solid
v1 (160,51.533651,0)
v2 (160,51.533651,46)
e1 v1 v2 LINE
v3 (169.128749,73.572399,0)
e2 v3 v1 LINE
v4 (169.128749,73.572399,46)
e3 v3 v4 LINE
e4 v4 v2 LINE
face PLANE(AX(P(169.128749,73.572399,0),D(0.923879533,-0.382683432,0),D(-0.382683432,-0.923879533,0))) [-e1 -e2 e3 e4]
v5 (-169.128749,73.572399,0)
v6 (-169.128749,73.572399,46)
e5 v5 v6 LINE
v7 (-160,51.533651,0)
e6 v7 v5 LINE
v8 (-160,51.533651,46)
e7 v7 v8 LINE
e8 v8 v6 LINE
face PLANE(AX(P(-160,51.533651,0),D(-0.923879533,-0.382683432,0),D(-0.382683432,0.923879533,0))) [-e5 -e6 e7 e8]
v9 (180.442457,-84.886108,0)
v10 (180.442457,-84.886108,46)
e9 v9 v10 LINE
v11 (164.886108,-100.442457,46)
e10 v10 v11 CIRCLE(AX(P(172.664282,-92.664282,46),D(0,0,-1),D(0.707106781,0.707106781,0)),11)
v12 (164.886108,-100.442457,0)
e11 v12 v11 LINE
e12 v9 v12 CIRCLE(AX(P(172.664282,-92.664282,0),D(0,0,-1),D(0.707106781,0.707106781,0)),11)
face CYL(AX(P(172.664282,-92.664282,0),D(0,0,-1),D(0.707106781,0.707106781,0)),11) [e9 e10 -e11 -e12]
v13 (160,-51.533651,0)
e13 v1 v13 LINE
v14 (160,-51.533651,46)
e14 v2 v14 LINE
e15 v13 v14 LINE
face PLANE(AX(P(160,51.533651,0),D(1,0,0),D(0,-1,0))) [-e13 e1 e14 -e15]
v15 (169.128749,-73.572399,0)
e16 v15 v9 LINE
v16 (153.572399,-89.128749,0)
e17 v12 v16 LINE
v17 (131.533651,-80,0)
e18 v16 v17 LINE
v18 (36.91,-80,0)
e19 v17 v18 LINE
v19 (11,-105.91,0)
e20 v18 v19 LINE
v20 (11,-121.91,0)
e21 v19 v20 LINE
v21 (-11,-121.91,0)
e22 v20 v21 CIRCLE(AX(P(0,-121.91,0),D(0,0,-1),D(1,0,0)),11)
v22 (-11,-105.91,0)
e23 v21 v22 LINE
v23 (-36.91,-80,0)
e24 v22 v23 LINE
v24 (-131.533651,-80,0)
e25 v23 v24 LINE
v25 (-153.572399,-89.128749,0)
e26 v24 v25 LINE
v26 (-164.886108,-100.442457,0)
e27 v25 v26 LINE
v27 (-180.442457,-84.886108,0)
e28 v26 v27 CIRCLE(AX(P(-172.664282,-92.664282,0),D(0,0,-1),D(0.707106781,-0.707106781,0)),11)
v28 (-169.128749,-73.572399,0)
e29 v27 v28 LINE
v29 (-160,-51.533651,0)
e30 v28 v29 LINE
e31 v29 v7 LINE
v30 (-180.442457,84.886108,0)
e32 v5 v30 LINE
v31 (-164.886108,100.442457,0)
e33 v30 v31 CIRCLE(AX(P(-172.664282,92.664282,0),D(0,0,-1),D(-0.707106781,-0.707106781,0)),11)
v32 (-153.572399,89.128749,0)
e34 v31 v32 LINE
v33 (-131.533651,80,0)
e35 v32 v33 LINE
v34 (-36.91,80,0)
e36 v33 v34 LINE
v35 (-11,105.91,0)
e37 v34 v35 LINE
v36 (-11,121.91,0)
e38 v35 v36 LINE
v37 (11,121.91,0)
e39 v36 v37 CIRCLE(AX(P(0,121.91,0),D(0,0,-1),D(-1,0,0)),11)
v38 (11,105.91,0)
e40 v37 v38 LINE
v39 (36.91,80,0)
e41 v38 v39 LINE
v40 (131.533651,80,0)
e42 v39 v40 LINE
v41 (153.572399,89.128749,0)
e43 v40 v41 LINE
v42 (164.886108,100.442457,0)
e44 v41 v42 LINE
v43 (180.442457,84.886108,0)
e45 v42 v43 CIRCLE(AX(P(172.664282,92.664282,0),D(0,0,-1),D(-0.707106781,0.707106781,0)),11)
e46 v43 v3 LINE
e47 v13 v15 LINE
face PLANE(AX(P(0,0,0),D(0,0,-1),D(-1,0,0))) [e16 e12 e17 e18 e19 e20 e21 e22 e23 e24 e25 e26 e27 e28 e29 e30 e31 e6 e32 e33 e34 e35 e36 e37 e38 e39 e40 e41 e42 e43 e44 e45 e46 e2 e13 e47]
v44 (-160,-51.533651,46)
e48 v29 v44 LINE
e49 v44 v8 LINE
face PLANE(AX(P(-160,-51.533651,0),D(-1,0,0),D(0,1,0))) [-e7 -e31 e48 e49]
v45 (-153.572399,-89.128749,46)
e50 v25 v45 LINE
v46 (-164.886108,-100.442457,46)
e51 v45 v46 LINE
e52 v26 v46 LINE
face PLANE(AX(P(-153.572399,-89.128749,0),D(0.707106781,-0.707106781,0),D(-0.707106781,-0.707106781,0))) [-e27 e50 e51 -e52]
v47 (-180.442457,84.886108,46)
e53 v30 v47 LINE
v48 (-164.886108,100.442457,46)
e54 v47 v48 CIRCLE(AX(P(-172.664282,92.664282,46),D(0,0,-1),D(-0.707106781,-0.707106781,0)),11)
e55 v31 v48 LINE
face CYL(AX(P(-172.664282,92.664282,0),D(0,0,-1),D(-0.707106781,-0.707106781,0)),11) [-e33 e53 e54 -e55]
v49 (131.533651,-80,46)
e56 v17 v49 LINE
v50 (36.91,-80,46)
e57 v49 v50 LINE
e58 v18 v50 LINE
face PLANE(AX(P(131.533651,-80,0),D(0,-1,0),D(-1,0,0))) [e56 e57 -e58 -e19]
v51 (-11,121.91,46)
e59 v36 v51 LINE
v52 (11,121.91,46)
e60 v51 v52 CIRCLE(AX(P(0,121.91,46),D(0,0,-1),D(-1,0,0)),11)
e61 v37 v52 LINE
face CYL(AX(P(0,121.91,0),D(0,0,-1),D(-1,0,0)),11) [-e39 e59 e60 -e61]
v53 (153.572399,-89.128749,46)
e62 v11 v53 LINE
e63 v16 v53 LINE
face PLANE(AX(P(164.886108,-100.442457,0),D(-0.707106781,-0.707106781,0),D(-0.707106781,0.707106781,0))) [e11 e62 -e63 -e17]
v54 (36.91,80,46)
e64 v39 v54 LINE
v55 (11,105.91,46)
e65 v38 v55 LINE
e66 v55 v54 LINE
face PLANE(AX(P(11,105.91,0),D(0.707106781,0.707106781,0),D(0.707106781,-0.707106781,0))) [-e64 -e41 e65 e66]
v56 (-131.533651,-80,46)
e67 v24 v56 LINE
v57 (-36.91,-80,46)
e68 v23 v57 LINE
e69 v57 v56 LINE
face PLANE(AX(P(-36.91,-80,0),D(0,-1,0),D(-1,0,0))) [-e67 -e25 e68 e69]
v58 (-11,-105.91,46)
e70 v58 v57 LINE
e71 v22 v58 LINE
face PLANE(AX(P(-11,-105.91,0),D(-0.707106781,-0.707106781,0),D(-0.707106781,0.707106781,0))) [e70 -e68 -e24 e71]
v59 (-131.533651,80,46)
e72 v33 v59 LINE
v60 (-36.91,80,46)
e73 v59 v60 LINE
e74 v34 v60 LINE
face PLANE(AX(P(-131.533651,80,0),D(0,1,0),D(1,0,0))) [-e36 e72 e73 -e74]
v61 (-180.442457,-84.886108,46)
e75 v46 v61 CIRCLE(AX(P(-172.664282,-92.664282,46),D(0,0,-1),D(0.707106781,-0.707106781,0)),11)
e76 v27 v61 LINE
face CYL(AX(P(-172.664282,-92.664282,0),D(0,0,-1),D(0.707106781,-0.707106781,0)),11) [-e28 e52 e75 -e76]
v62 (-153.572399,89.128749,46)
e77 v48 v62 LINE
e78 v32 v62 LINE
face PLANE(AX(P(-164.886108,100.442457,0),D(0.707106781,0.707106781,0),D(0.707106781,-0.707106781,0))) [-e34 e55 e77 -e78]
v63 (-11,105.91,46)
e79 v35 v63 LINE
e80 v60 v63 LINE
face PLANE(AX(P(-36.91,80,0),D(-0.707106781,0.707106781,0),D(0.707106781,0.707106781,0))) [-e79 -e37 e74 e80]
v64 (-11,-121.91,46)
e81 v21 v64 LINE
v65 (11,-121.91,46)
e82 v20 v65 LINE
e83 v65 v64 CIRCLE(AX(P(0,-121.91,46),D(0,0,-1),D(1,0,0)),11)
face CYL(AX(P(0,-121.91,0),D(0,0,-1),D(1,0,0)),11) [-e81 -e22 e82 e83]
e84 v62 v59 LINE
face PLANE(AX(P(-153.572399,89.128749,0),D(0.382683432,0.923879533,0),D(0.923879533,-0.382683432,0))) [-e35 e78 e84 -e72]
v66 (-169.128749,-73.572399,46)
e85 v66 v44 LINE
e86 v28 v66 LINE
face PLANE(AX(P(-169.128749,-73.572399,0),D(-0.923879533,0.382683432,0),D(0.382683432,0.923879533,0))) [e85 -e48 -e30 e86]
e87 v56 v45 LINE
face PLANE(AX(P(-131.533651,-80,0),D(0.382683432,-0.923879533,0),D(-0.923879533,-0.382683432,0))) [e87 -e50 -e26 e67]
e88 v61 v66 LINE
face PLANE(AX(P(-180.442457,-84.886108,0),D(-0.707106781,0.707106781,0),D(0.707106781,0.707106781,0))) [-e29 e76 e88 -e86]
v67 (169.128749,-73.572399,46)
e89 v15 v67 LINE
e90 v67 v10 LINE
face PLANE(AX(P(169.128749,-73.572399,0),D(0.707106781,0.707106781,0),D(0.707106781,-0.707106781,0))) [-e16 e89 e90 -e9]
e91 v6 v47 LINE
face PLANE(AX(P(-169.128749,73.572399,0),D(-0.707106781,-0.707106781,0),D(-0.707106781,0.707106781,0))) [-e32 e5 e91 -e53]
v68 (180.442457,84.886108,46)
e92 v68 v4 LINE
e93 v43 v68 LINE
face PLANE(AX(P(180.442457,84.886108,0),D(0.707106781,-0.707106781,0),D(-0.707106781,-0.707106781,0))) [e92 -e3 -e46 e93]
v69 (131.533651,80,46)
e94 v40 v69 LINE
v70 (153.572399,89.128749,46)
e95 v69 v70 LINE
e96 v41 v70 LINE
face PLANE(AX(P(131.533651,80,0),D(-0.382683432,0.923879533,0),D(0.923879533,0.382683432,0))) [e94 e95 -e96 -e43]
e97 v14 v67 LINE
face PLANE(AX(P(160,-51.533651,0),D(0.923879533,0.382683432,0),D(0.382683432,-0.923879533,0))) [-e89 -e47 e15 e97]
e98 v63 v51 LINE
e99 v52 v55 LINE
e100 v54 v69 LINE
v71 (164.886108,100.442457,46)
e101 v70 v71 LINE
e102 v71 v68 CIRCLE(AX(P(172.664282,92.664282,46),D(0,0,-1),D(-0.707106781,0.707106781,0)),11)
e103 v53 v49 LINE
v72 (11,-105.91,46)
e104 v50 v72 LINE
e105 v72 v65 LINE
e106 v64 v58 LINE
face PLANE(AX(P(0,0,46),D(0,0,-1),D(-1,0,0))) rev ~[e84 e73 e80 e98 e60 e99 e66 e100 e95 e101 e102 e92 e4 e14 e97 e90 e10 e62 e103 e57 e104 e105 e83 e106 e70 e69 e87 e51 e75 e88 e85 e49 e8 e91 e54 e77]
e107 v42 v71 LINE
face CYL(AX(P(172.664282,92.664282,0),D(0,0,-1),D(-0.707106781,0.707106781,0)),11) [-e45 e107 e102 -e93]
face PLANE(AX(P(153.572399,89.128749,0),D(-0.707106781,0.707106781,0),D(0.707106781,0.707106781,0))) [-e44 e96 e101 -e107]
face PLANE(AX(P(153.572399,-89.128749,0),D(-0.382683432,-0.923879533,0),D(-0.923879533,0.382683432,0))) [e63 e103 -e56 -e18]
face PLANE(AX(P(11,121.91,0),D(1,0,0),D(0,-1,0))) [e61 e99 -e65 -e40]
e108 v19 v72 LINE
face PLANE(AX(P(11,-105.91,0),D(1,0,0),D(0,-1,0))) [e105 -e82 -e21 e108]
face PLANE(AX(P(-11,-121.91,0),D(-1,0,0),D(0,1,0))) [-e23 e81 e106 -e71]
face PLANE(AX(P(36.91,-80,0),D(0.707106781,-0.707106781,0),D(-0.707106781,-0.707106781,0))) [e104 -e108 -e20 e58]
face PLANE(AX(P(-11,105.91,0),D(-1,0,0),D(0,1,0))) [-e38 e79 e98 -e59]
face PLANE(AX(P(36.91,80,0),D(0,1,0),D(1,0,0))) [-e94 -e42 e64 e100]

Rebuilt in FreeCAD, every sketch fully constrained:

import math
import FreeCAD as App
import Part
import Sketcher

V = App.Vector
Q = App.Units.Quantity

doc = App.newDocument("Part")
body = doc.addObject("PartDesign::Body", "Body")

# Sketch on XY plane
sketch1 = body.newObject("Sketcher::SketchObject", "Sketch")
sketch1.AttachmentSupport = (doc.getObject("XY_Plane"), [""])
sketch1.MapMode = "FlatFace"
sketch1.addGeometry([
    Part.LineSegment(V(11, 106, 0), V(11, 122, 0)),  # 0
    Part.ArcOfCircle(Part.Circle(V(0, 122, 0), V(0, 0, 1), 11), math.radians(0), math.radians(180)),  # 1
    Part.LineSegment(V(-11, 122, 0), V(-11, 106, 0)),  # 2
    Part.LineSegment(V(-11, 106, 0), V(-37, 80, 0)),  # 3
    Part.LineSegment(V(-37, 80, 0), V(-132, 80, 0)),  # 4
    Part.LineSegment(V(-132, 80, 0), V(-154, 89, 0)),  # 5
    Part.LineSegment(V(-154, 89, 0), V(-165, 100, 0)),  # 6
    Part.ArcOfCircle(Part.Circle(V(-173, 93, 0), V(0, 0, 1), 11), math.radians(45), math.radians(225)),  # 7
    Part.LineSegment(V(-180, 85, 0), V(-169, 74, 0)),  # 8
    Part.LineSegment(V(-169, 74, 0), V(-160, 52, 0)),  # 9
    Part.LineSegment(V(-160, 52, 0), V(-160, -52, 0)),  # 10
    Part.LineSegment(V(-160, -52, 0), V(-169, -74, 0)),  # 11
    Part.LineSegment(V(-169, -74, 0), V(-180, -85, 0)),  # 12
    Part.ArcOfCircle(Part.Circle(V(-173, -93, 0), V(0, 0, 1), 11), math.radians(135), math.radians(315)),  # 13
    Part.LineSegment(V(-165, -100, 0), V(-154, -89, 0)),  # 14
    Part.LineSegment(V(-154, -89, 0), V(-132, -80, 0)),  # 15
    Part.LineSegment(V(-132, -80, 0), V(-37, -80, 0)),  # 16
    Part.LineSegment(V(-37, -80, 0), V(-11, -106, 0)),  # 17
    Part.LineSegment(V(-11, -106, 0), V(-11, -122, 0)),  # 18
    Part.ArcOfCircle(Part.Circle(V(0, -122, 0), V(0, 0, 1), 11), math.radians(180), math.radians(360)),  # 19
    Part.LineSegment(V(11, -122, 0), V(11, -106, 0)),  # 20
    Part.LineSegment(V(11, -106, 0), V(37, -80, 0)),  # 21
    Part.LineSegment(V(37, -80, 0), V(132, -80, 0)),  # 22
    Part.LineSegment(V(132, -80, 0), V(154, -89, 0)),  # 23
    Part.LineSegment(V(154, -89, 0), V(165, -100, 0)),  # 24
    Part.ArcOfCircle(Part.Circle(V(173, -93, 0), V(0, 0, 1), 11), math.radians(-135), math.radians(45)),  # 25
    Part.LineSegment(V(180, -85, 0), V(169, -74, 0)),  # 26
    Part.LineSegment(V(169, -74, 0), V(160, -52, 0)),  # 27
    Part.LineSegment(V(160, -52, 0), V(160, 52, 0)),  # 28
    Part.LineSegment(V(160, 52, 0), V(169, 74, 0)),  # 29
    Part.LineSegment(V(169, 74, 0), V(180, 85, 0)),  # 30
    Part.ArcOfCircle(Part.Circle(V(173, 93, 0), V(0, 0, 1), 11), math.radians(-45), math.radians(135)),  # 31
    Part.LineSegment(V(165, 100, 0), V(154, 89, 0)),  # 32
    Part.LineSegment(V(154, 89, 0), V(132, 80, 0)),  # 33
    Part.LineSegment(V(132, 80, 0), V(37, 80, 0)),  # 34
    Part.LineSegment(V(37, 80, 0), V(11, 106, 0)),  # 35
], False)
sketch1.addConstraint([
    Sketcher.Constraint("Tangent", 0, 2, 1, 1),
    Sketcher.Constraint("Tangent", 1, 2, 2, 1),
    Sketcher.Constraint("Coincident", 2, 2, 3, 1),
    Sketcher.Constraint("Coincident", 3, 2, 4, 1),
    Sketcher.Constraint("Coincident", 4, 2, 5, 1),
    Sketcher.Constraint("Coincident", 5, 2, 6, 1),
    Sketcher.Constraint("Tangent", 6, 2, 7, 1),
    Sketcher.Constraint("Tangent", 7, 2, 8, 1),
    Sketcher.Constraint("Coincident", 8, 2, 9, 1),
    Sketcher.Constraint("Coincident", 9, 2, 10, 1),
    Sketcher.Constraint("Coincident", 10, 2, 11, 1),
    Sketcher.Constraint("Coincident", 11, 2, 12, 1),
    Sketcher.Constraint("Tangent", 12, 2, 13, 1),
    Sketcher.Constraint("Tangent", 13, 2, 14, 1),
    Sketcher.Constraint("Coincident", 14, 2, 15, 1),
    Sketcher.Constraint("Coincident", 15, 2, 16, 1),
    Sketcher.Constraint("Coincident", 16, 2, 17, 1),
    Sketcher.Constraint("Coincident", 17, 2, 18, 1),
    Sketcher.Constraint("Tangent", 18, 2, 19, 1),
    Sketcher.Constraint("Tangent", 19, 2, 20, 1),
    Sketcher.Constraint("Coincident", 20, 2, 21, 1),
    Sketcher.Constraint("Coincident", 21, 2, 22, 1),
    Sketcher.Constraint("Coincident", 22, 2, 23, 1),
    Sketcher.Constraint("Coincident", 23, 2, 24, 1),
    Sketcher.Constraint("Tangent", 24, 2, 25, 1),
    Sketcher.Constraint("Tangent", 25, 2, 26, 1),
    Sketcher.Constraint("Coincident", 26, 2, 27, 1),
    Sketcher.Constraint("Coincident", 27, 2, 28, 1),
    Sketcher.Constraint("Coincident", 28, 2, 29, 1),
    Sketcher.Constraint("Coincident", 29, 2, 30, 1),
    Sketcher.Constraint("Tangent", 30, 2, 31, 1),
    Sketcher.Constraint("Tangent", 31, 2, 32, 1),
    Sketcher.Constraint("Coincident", 32, 2, 33, 1),
    Sketcher.Constraint("Coincident", 33, 2, 34, 1),
    Sketcher.Constraint("Coincident", 34, 2, 35, 1),
    Sketcher.Constraint("Coincident", 35, 2, 0, 1),
    Sketcher.Constraint("Vertical", 0),
    Sketcher.Constraint("Vertical", 2),
    Sketcher.Constraint("Horizontal", 4),
    Sketcher.Constraint("Vertical", 10),
    Sketcher.Constraint("Horizontal", 16),
    Sketcher.Constraint("Vertical", 18),
    Sketcher.Constraint("Vertical", 20),
    Sketcher.Constraint("Horizontal", 22),
    Sketcher.Constraint("Vertical", 28),
    Sketcher.Constraint("Horizontal", 34),
    Sketcher.Constraint("Equal", 1, 7),
    Sketcher.Constraint("Equal", 7, 13),
    Sketcher.Constraint("Equal", 13, 19),
    Sketcher.Constraint("Equal", 19, 25),
    Sketcher.Constraint("Equal", 25, 31),
    Sketcher.Constraint("Symmetric", 1, 3, 19, 3, -1, 1),
    Sketcher.Constraint("Symmetric", 7, 3, 25, 3, -1, 1),
    Sketcher.Constraint("Symmetric", 13, 3, 31, 3, -1, 1),
    Sketcher.Constraint("Symmetric", 3, 2, 21, 2, -1, 1),
    Sketcher.Constraint("Symmetric", 5, 2, 23, 2, -1, 1),
    Sketcher.Constraint("Symmetric", 8, 2, 26, 2, -1, 1),
    Sketcher.Constraint("Symmetric", 9, 2, 27, 2, -1, 1),
    Sketcher.Constraint("Symmetric", 11, 2, 29, 2, -1, 1),
    Sketcher.Constraint("Symmetric", 14, 2, 32, 2, -1, 1),
    Sketcher.Constraint("Symmetric", 15, 2, 33, 2, -1, 1),
    Sketcher.Constraint("Symmetric", 13, 3, 25, 3, -2),
    Sketcher.Constraint("Symmetric", 17, 2, 20, 2, -2),
    Sketcher.Constraint("Symmetric", 16, 2, 21, 2, -2),
    Sketcher.Constraint("Symmetric", 14, 2, 23, 2, -2),
    Sketcher.Constraint("Symmetric", 11, 2, 26, 2, -2),
    Sketcher.Constraint("Perpendicular", 3, 6),
    Sketcher.Constraint("Parallel", 6, 8),
    Sketcher.Constraint("Perpendicular", 5, 11),
    Sketcher.Constraint("Perpendicular", 8, 12),
    Sketcher.Constraint("Perpendicular", 9, 15),
    Sketcher.Constraint("Perpendicular", 14, 17),
    Sketcher.Constraint("Perpendicular", 11, 23),
    Sketcher.Constraint("Perpendicular", 23, 29),
    Sketcher.Constraint("Perpendicular", 32, 35),
    Sketcher.Constraint("Horizontal", 10, 2, 27, 2),
    Sketcher.Constraint("Horizontal", 2, 2, 35, 2),
    Sketcher.Constraint("Equal", 6, 8),
    Sketcher.Constraint("Equal", 5, 9),
    Sketcher.Constraint("Radius", 1, 11.0),
    Sketcher.Constraint("DistanceY", 0, 1, 0, 2, 16.0),
    Sketcher.Constraint("Distance", 6, 16.0),
    Sketcher.Constraint("DistanceY", -1, 1, 3, 2, 80.0),
    Sketcher.Constraint("DistanceX", 9, 2, -1, 1, 160.0),
    Sketcher.Constraint("Angle", 5, Q("157.5 deg")),
    Sketcher.Constraint("DistanceY", -1, 1, 1, 3, 121.91),
    Sketcher.Constraint("DistanceY", 10, 2, 10, 1, 103.067302),
])
pad1 = body.newObject("PartDesign::Pad", "Pad")
pad1.Profile = sketch1
pad1.Length = 46

doc.recompute()
